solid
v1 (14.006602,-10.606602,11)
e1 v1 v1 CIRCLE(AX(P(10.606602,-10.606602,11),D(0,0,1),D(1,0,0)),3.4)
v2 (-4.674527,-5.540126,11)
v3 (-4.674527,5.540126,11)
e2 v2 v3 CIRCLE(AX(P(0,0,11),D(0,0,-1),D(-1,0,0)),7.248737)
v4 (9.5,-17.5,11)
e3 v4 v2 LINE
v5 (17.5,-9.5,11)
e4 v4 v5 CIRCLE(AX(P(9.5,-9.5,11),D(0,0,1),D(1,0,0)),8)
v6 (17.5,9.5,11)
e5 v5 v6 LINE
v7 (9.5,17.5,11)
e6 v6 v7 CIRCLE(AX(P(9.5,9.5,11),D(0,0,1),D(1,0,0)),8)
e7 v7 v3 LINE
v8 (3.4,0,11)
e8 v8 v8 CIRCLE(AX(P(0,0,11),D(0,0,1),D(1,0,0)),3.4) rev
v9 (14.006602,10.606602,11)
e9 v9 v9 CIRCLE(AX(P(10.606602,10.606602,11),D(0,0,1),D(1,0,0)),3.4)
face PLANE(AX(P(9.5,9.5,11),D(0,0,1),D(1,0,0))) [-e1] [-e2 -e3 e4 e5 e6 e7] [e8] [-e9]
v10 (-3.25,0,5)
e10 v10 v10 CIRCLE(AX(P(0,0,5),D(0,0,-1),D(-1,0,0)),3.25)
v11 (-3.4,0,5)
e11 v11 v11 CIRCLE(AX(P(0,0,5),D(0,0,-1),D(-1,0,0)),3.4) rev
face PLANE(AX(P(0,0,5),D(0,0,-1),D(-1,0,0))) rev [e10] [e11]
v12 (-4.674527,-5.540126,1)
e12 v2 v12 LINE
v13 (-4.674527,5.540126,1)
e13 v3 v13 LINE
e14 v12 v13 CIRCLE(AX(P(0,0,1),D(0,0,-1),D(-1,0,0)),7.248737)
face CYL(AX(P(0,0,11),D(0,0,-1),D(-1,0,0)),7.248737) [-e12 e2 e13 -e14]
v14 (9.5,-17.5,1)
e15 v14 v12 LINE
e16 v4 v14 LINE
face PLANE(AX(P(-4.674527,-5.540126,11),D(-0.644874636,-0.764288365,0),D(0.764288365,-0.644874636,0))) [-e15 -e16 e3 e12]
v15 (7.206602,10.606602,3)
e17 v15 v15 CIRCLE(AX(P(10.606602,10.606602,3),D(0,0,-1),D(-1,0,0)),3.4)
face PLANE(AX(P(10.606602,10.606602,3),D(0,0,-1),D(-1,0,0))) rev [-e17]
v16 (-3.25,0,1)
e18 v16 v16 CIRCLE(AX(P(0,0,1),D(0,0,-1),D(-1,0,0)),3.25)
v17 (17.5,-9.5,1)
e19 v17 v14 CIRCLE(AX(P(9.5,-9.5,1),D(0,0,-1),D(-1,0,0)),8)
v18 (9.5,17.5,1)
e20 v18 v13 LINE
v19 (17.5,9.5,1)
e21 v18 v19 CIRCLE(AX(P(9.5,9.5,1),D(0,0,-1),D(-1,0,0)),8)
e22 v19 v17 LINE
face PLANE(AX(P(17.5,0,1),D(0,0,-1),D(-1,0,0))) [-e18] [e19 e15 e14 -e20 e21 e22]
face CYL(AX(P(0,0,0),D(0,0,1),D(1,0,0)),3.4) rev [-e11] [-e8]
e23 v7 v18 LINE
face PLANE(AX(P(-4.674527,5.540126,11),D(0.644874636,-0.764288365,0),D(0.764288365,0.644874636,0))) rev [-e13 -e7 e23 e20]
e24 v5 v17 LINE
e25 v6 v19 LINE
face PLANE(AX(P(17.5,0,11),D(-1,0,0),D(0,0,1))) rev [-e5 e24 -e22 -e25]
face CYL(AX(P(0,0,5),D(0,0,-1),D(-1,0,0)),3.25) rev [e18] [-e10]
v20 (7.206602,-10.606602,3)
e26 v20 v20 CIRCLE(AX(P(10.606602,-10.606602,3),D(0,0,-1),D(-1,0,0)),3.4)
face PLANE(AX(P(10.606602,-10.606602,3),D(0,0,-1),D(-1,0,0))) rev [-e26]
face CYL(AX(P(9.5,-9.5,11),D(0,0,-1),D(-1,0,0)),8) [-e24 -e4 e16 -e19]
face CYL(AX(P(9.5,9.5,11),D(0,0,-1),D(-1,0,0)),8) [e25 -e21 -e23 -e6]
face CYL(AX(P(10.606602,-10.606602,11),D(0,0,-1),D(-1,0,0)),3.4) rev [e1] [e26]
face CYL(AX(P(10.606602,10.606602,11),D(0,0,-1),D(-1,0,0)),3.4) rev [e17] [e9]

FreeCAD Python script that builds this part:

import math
import FreeCAD as App
import Part
import Sketcher
from FreeCAD import Vector

doc = App.newDocument("Part")
params = doc.addObject("Spreadsheet::Sheet", "Params")
for row, (alias, value) in enumerate([
    ("sketch1_radius", "8 mm"),
    ("sketch1_diameter", "6.8 mm"),
    ("sketch1_width", "19 mm"),
    ("pad1_length", "11 mm"),
    ("sketch2_diameter", "6.8 mm"),
    ("pad2_length", "3 mm"),
    ("sketch3_diameter", "6.8 mm"),
    ("sketch4_diameter", "12 mm"),
    ("sketch4_diameter2", "6.8 mm"),
    ("pocket2_length", "5 mm"),
    ("sketch5_radius", "8 mm"),
    ("sketch5_width", "9.5 mm"),
    ("sketch7_radius", "8 mm"),
    ("sketch7_diameter", "6.8 mm"),
    ("sketch7_height", "19 mm"),
    ("sketch7_width", "9.5 mm"),
    ("pad3_length", "1 mm"),
    ("sketch8_radius", "8 mm"),
    ("sketch8_height", "19 mm"),
    ("sketch8_width", "9.5 mm"),
    ("pocket5_length", "1 mm"),
    ("sketch9_radius", "8 mm"),
    ("sketch9_height", "19 mm"),
    ("sketch9_width", "9.5 mm"),
    ("pocket6_length", "1 mm"),
    ("sketch10_width", "9.5 mm"),
    ("pocket7_length", "10 mm"),
    ("sketch11_diameter", "12 mm"),
    ("sketch11_diameter2", "6.5 mm"),
    ("pad4_length", "4 mm"),
], start=1):
    params.set(f"A{row}", alias)
    params.set(f"B{row}", "=" + value)
    params.setAlias(f"B{row}", alias)

body = doc.addObject("PartDesign::Body", "Body")

sketch1 = doc.addObject("Sketcher::SketchObject", "Sketch")
body.addObject(sketch1)
sketch1.AttachmentSupport = (doc.XY_Plane, [""])
sketch1.MapMode = "FlatFace"
sketch1.addGeometry([
    Part.LineSegment(Vector(-9.5, -17.5, 0), Vector(9.5, -17.5, 0)),
    Part.ArcOfCircle(Part.Circle(Vector(9.5, -9.5, 0), Vector(0, 0, 1), 8), math.radians(-90), math.radians(0)),
    Part.LineSegment(Vector(17.5, -9.5, 0), Vector(17.5, 9.5, 0)),
    Part.ArcOfCircle(Part.Circle(Vector(9.5, 9.5, 0), Vector(0, 0, 1), 8), math.radians(0), math.radians(90)),
    Part.LineSegment(Vector(9.5, 17.5, 0), Vector(-9.5, 17.5, 0)),
    Part.ArcOfCircle(Part.Circle(Vector(-9.5, 9.5, 0), Vector(0, 0, 1), 8), math.radians(90), math.radians(180)),
    Part.LineSegment(Vector(-17.5, 9.5, 0), Vector(-17.5, -9.5, 0)),
    Part.ArcOfCircle(Part.Circle(Vector(-9.5, -9.5, 0), Vector(0, 0, 1), 8), math.radians(-180), math.radians(-90)),
    Part.Circle(Vector(-10.6, -10.6, 0), Vector(0, 0, 1), 3.4),
    Part.Circle(Vector(10.6, -10.6, 0), Vector(0, 0, 1), 3.4),
    Part.Circle(Vector(-10.6, 10.6, 0), Vector(0, 0, 1), 3.4),
    Part.Circle(Vector(10.6, 10.6, 0), Vector(0, 0, 1), 3.4),
], False)
sketch1.addConstraint([
    Sketcher.Constraint("Tangent", 0, 2, 1, 1),
    Sketcher.Constraint("Tangent", 1, 2, 2, 1),
    Sketcher.Constraint("Tangent", 2, 2, 3, 1),
    Sketcher.Constraint("Tangent", 3, 2, 4, 1),
    Sketcher.Constraint("Tangent", 4, 2, 5, 1),
    Sketcher.Constraint("Tangent", 5, 2, 6, 1),
    Sketcher.Constraint("Tangent", 6, 2, 7, 1),
    Sketcher.Constraint("Tangent", 7, 2, 0, 1),
    Sketcher.Constraint("Horizontal", 0),
    Sketcher.Constraint("Vertical", 2),
    Sketcher.Constraint("Horizontal", 4),
    Sketcher.Constraint("Vertical", 6),
    Sketcher.Constraint("Equal", 1, 3),
    Sketcher.Constraint("Equal", 3, 5),
    Sketcher.Constraint("Equal", 5, 7),
    Sketcher.Constraint("Equal", 8, 9),
    Sketcher.Constraint("Equal", 9, 10),
    Sketcher.Constraint("Equal", 10, 11),
    Sketcher.Constraint("Symmetric", 1, 3, 5, 3, -1, 1),
    Sketcher.Constraint("Symmetric", 9, 3, 10, 3, -1, 1),
    Sketcher.Constraint("Symmetric", 8, 3, 11, 3, -1, 1),
    Sketcher.Constraint("Symmetric", 8, 3, 9, 3, -2),
    Sketcher.Constraint("Equal", 4, 2),
    Sketcher.Constraint("Radius", 1, 8.0),
    Sketcher.Constraint("Diameter", 8, 6.8),
    Sketcher.Constraint("DistanceX", 0, 1, 0, 2, 19.0),
    Sketcher.Constraint("DistanceX", 8, 3, -1, 1, 10.606602),
    Sketcher.Constraint("DistanceY", 8, 3, -1, 1, 10.606602),
])
sketch1.setExpression("Constraints[23]", "Params.sketch1_radius")
sketch1.setExpression("Constraints[24]", "Params.sketch1_diameter")
sketch1.setExpression("Constraints[25]", "Params.sketch1_width")
pad1 = doc.addObject("PartDesign::Pad", "Pad")
body.addObject(pad1)
pad1.Profile = sketch1
pad1.setExpression("Length", "Params.pad1_length")

sketch2 = doc.addObject("Sketcher::SketchObject", "Sketch001")
body.addObject(sketch2)
sketch2.AttachmentSupport = (doc.XY_Plane, [""])
sketch2.MapMode = "FlatFace"
sketch2.addGeometry([
    Part.Circle(Vector(-10.6, -10.6, 0), Vector(0, 0, 1), 3.4),
    Part.Circle(Vector(10.6, -10.6, 0), Vector(0, 0, 1), 3.4),
    Part.Circle(Vector(-10.6, 10.6, 0), Vector(0, 0, 1), 3.4),
    Part.Circle(Vector(10.6, 10.6, 0), Vector(0, 0, 1), 3.4),
], False)
sketch2.addConstraint([
    Sketcher.Constraint("Equal", 0, 1),
    Sketcher.Constraint("Equal", 1, 2),
    Sketcher.Constraint("Equal", 2, 3),
    Sketcher.Constraint("Symmetric", 1, 3, 2, 3, -1, 1),
    Sketcher.Constraint("Symmetric", 0, 3, 3, 3, -1, 1),
    Sketcher.Constraint("Symmetric", 0, 3, 1, 3, -2),
    Sketcher.Constraint("Diameter", 0, 6.8),
    Sketcher.Constraint("DistanceX", 0, 3, -1, 1, 10.606602),
    Sketcher.Constraint("DistanceY", 0, 3, -1, 1, 10.606602),
])
sketch2.setExpression("Constraints[6]", "Params.sketch2_diameter")
pad2 = doc.addObject("PartDesign::Pad", "Pad001")
body.addObject(pad2)
pad2.Profile = sketch2
pad2.setExpression("Length", "Params.pad2_length")

sketch3 = doc.addObject("Sketcher::SketchObject", "Sketch002")
body.addObject(sketch3)
sketch3.AttachmentSupport = (doc.XY_Plane, [""])
sketch3.MapMode = "FlatFace"
sketch3.AttachmentOffset = App.Placement(Vector(0, 0, 11), App.Rotation())
sketch3.addGeometry(Part.Circle(Vector(0, 0, 0), Vector(0, 0, 1), 3.4), False)
sketch3.addConstraint([
    Sketcher.Constraint("Coincident", 0, 3, -1, 1),
    Sketcher.Constraint("Diameter", 0, 6.8),
])
sketch3.setExpression("Constraints[1]", "Params.sketch3_diameter")
pocket1 = doc.addObject("PartDesign::Pocket", "Pocket")
body.addObject(pocket1)
pocket1.Profile = sketch3
pocket1.Type = "ThroughAll"

sketch4 = doc.addObject("Sketcher::SketchObject", "Sketch003")
body.addObject(sketch4)
sketch4.AttachmentSupport = (doc.XY_Plane, [""])
sketch4.MapMode = "FlatFace"
sketch4.AttachmentOffset = App.Placement(Vector(0, 0, 5), App.Rotation())
sketch4.addGeometry([
    Part.Circle(Vector(0, 0, 0), Vector(0, 0, 1), 6),
    Part.Circle(Vector(0, 0, 0), Vector(0, 0, 1), 3.4),
], False)
sketch4.addConstraint([
    Sketcher.Constraint("Coincident", 0, 3, -1, 1),
    Sketcher.Constraint("Coincident", 1, 3, -1, 1),
    Sketcher.Constraint("Diameter", 0, 12.0),
    Sketcher.Constraint("Diameter", 1, 6.8),
])
sketch4.setExpression("Constraints[2]", "Params.sketch4_diameter")
sketch4.setExpression("Constraints[3]", "Params.sketch4_diameter2")
pocket2 = doc.addObject("PartDesign::Pocket", "Pocket001")
body.addObject(pocket2)
pocket2.Profile = sketch4
pocket2.setExpression("Length", "Params.pocket2_length")

sketch5 = doc.addObject("Sketcher::SketchObject", "Sketch004")
body.addObject(sketch5)
sketch5.AttachmentSupport = (doc.XY_Plane, [""])
sketch5.MapMode = "FlatFace"
sketch5.addGeometry([
    Part.LineSegment(Vector(-10, 18, 0), Vector(0, 18, 0)),
    Part.LineSegment(Vector(0, 18, 0), Vector(-18, 0, 0)),
    Part.LineSegment(Vector(-18, 0, 0), Vector(-18, 10, 0)),
    Part.ArcOfCircle(Part.Circle(Vector(-9, 9, 0), Vector(0, 0, 1), 8), math.radians(90), math.radians(180)),
    Part.LineSegment(Vector(-18, -10, 0), Vector(-18, 0, 0)),
    Part.LineSegment(Vector(-18, 0, 0), Vector(0, -18, 0)),
    Part.LineSegment(Vector(0, -18, 0), Vector(-10, -18, 0)),
    Part.ArcOfCircle(Part.Circle(Vector(-9, -9, 0), Vector(0, 0, 1), 8), math.radians(-180), math.radians(-90)),
], False)
sketch5.addConstraint([
    Sketcher.Constraint("Coincident", 0, 2, 1, 1),
    Sketcher.Constraint("Coincident", 1, 2, 2, 1),
    Sketcher.Constraint("Tangent", 2, 2, 3, 2),
    Sketcher.Constraint("Tangent", 3, 1, 0, 1),
    Sketcher.Constraint("Coincident", 4, 2, 5, 1),
    Sketcher.Constraint("Coincident", 5, 2, 6, 1),
    Sketcher.Constraint("Tangent", 6, 2, 7, 2),
    Sketcher.Constraint("Tangent", 7, 1, 4, 1),
    Sketcher.Constraint("Horizontal", 0),
    Sketcher.Constraint("Vertical", 2),
    Sketcher.Constraint("Vertical", 4),
    Sketcher.Constraint("Horizontal", 6),
    Sketcher.Constraint("Coincident", 4, 2, 1, 2),
    Sketcher.Constraint("Equal", 3, 7),
    Sketcher.Constraint("Symmetric", 0, 2, 5, 2, -1, 1),
    Sketcher.Constraint("PointOnObject", 0, 2, -2),
    Sketcher.Constraint("PointOnObject", 1, 2, -1),
    Sketcher.Constraint("Perpendicular", 1, 5),
    Sketcher.Constraint("Radius", 3, 8.0),
    Sketcher.Constraint("DistanceX", 0, 1, 0, 2, 9.5),
])
sketch5.setExpression("Constraints[18]", "Params.sketch5_radius")
sketch5.setExpression("Constraints[19]", "Params.sketch5_width")
pocket3 = doc.addObject("PartDesign::Pocket", "Pocket002")
body.addObject(pocket3)
pocket3.Profile = sketch5
pocket3.Type = "ThroughAll"
pocket3.Reversed = True

sketch6 = doc.addObject("Sketcher::SketchObject", "Sketch005")
body.addObject(sketch6)
sketch6.AttachmentSupport = (doc.XY_Plane, [""])
sketch6.MapMode = "FlatFace"
sketch6.AttachmentOffset = App.Placement(Vector(0, 0, 11), App.Rotation())
sketch6.addGeometry([
    Part.ArcOfCircle(Part.Circle(Vector(17, 0, 0), Vector(0, 0, 1), 25), math.radians(135), math.radians(225)),
    Part.LineSegment(Vector(0, 18, 0), Vector(-18, 0, 0)),
    Part.LineSegment(Vector(-18, 0, 0), Vector(0, -18, 0)),
], False)
sketch6.addConstraint([
    Sketcher.Constraint("Tangent", 0, 1, 1, 1),
    Sketcher.Constraint("Coincident", 1, 2, 2, 1),
    Sketcher.Constraint("Tangent", 2, 2, 0, 2),
    Sketcher.Constraint("Symmetric", 0, 1, 2, 2, -1, 1),
    Sketcher.Constraint("PointOnObject", 0, 3, -1),
    Sketcher.Constraint("Perpendicular", 1, 2),
    Sketcher.Constraint("DistanceX", 1, 2, 0, 3, 35.0),
])
pocket4 = doc.addObject("PartDesign::Pocket", "Pocket003")
body.addObject(pocket4)
pocket4.Profile = sketch6
pocket4.Type = "ThroughAll"

sketch7 = doc.addObject("Sketcher::SketchObject", "Sketch006")
body.addObject(sketch7)
sketch7.AttachmentSupport = (doc.XY_Plane, [""])
sketch7.MapMode = "FlatFace"
sketch7.AttachmentOffset = App.Placement(Vector(0, 0, 11), App.Rotation())
sketch7.addGeometry([
    Part.LineSegment(Vector(9.5, 17.5, 0), Vector(0, 17.5, 0)),
    Part.ArcOfCircle(Part.Circle(Vector(17.5, 0, 0), Vector(0, 0, 1), 24.7), math.radians(135), math.radians(225)),
    Part.LineSegment(Vector(0, -17.5, 0), Vector(9.5, -17.5, 0)),
    Part.ArcOfCircle(Part.Circle(Vector(9.5, -9.5, 0), Vector(0, 0, 1), 8), math.radians(-90), math.radians(0)),
    Part.LineSegment(Vector(17.5, -9.5, 0), Vector(17.5, 9.5, 0)),
    Part.ArcOfCircle(Part.Circle(Vector(9.5, 9.5, 0), Vector(0, 0, 1), 8), math.radians(0), math.radians(90)),
    Part.Circle(Vector(10.6, -10.6, 0), Vector(0, 0, 1), 3.4),
    Part.Circle(Vector(0, 0, 0), Vector(0, 0, 1), 3.4),
    Part.Circle(Vector(10.6, 10.6, 0), Vector(0, 0, 1), 3.4),
], False)
sketch7.addConstraint([
    Sketcher.Constraint("Coincident", 0, 2, 1, 1),
    Sketcher.Constraint("Coincident", 1, 2, 2, 1),
    Sketcher.Constraint("Tangent", 2, 2, 3, 1),
    Sketcher.Constraint("Tangent", 3, 2, 4, 1),
    Sketcher.Constraint("Tangent", 4, 2, 5, 1),
    Sketcher.Constraint("Tangent", 5, 2, 0, 1),
    Sketcher.Constraint("Horizontal", 0),
    Sketcher.Constraint("Horizontal", 2),
    Sketcher.Constraint("Vertical", 4),
    Sketcher.Constraint("Coincident", 7, 3, -1, 1),
    Sketcher.Constraint("Equal", 3, 5),
    Sketcher.Constraint("Equal", 6, 7),
    Sketcher.Constraint("Equal", 7, 8),
    Sketcher.Constraint("Symmetric", 0, 2, 1, 2, -1, 1),
    Sketcher.Constraint("Symmetric", 6, 3, 8, 3, -1),
    Sketcher.Constraint("PointOnObject", 1, 3, -1),
    Sketcher.Constraint("Vertical", 1, 3, 3, 2),
    Sketcher.Constraint("Radius", 3, 8.0),
    Sketcher.Constraint("Diameter", 6, 6.8),
    Sketcher.Constraint("DistanceY", 4, 1, 4, 2, 19.0),
    Sketcher.Constraint("DistanceX", 0, 2, 0, 1, 9.5),
    Sketcher.Constraint("DistanceX", -1, 1, 6, 3, 10.606602),
    Sketcher.Constraint("DistanceY", 6, 3, -1, 1, 10.606602),
])
sketch7.setExpression("Constraints[17]", "Params.sketch7_radius")
sketch7.setExpression("Constraints[18]", "Params.sketch7_diameter")
sketch7.setExpression("Constraints[19]", "Params.sketch7_height")
sketch7.setExpression("Constraints[20]", "Params.sketch7_width")
pad3 = doc.addObject("PartDesign::Pad", "Pad002")
body.addObject(pad3)
pad3.Profile = sketch7
pad3.setExpression("Length", "Params.pad3_length")

sketch8 = doc.addObject("Sketcher::SketchObject", "Sketch007")
body.addObject(sketch8)
sketch8.AttachmentSupport = (doc.XY_Plane, [""])
sketch8.MapMode = "FlatFace"
sketch8.AttachmentOffset = App.Placement(Vector(0, 0, 11), App.Rotation())
sketch8.addGeometry([
    Part.LineSegment(Vector(10, 18, 0), Vector(0, 18, 0)),
    Part.ArcOfCircle(Part.Circle(Vector(17, 0, 0), Vector(0, 0, 1), 25), math.radians(135), math.radians(225)),
    Part.LineSegment(Vector(0, -18, 0), Vector(10, -18, 0)),
    Part.ArcOfCircle(Part.Circle(Vector(9, -9, 0), Vector(0, 0, 1), 8), math.radians(-90), math.radians(0)),
    Part.LineSegment(Vector(18, -10, 0), Vector(18, 10, 0)),
    Part.ArcOfCircle(Part.Circle(Vector(9, 9, 0), Vector(0, 0, 1), 8), math.radians(0), math.radians(90)),
], False)
sketch8.addConstraint([
    Sketcher.Constraint("Coincident", 0, 2, 1, 1),
    Sketcher.Constraint("Coincident", 1, 2, 2, 1),
    Sketcher.Constraint("Tangent", 2, 2, 3, 1),
    Sketcher.Constraint("Tangent", 3, 2, 4, 1),
    Sketcher.Constraint("Tangent", 4, 2, 5, 1),
    Sketcher.Constraint("Tangent", 5, 2, 0, 1),
    Sketcher.Constraint("Horizontal", 0),
    Sketcher.Constraint("Horizontal", 2),
    Sketcher.Constraint("Vertical", 4),
    Sketcher.Constraint("Equal", 3, 5),
    Sketcher.Constraint("Symmetric", 0, 2, 1, 2, -1, 1),
    Sketcher.Constraint("PointOnObject", 1, 3, -1),
    Sketcher.Constraint("Vertical", 1, 3, 3, 2),
    Sketcher.Constraint("Radius", 3, 8.0),
    Sketcher.Constraint("DistanceY", 4, 1, 4, 2, 19.0),
    Sketcher.Constraint("DistanceX", 0, 2, 0, 1, 9.5),
])
sketch8.setExpression("Constraints[13]", "Params.sketch8_radius")
sketch8.setExpression("Constraints[14]", "Params.sketch8_height")
sketch8.setExpression("Constraints[15]", "Params.sketch8_width")
pocket5 = doc.addObject("PartDesign::Pocket", "Pocket004")
body.addObject(pocket5)
pocket5.Profile = sketch8
pocket5.setExpression("Length", "Params.pocket5_length")
pocket5.Reversed = True

sketch9 = doc.addObject("Sketcher::SketchObject", "Sketch008")
body.addObject(sketch9)
sketch9.AttachmentSupport = (doc.XY_Plane, [""])
sketch9.MapMode = "FlatFace"
sketch9.addGeometry([
    Part.LineSegment(Vector(0, 18, 0), Vector(10, 18, 0)),
    Part.ArcOfCircle(Part.Circle(Vector(9, 9, 0), Vector(0, 0, 1), 8), math.radians(0), math.radians(90)),
    Part.LineSegment(Vector(18, 10, 0), Vector(18, -10, 0)),
    Part.ArcOfCircle(Part.Circle(Vector(9, -9, 0), Vector(0, 0, 1), 8), math.radians(-90), math.radians(0)),
    Part.LineSegment(Vector(10, -18, 0), Vector(0, -18, 0)),
    Part.ArcOfCircle(Part.Circle(Vector(17, 0, 0), Vector(0, 0, 1), 25), math.radians(135), math.radians(225)),
], False)
sketch9.addConstraint([
    Sketcher.Constraint("Tangent", 0, 2, 1, 2),
    Sketcher.Constraint("Tangent", 1, 1, 2, 1),
    Sketcher.Constraint("Tangent", 2, 2, 3, 2),
    Sketcher.Constraint("Tangent", 3, 1, 4, 1),
    Sketcher.Constraint("Coincident", 4, 2, 5, 2),
    Sketcher.Constraint("Coincident", 5, 1, 0, 1),
    Sketcher.Constraint("Horizontal", 0),
    Sketcher.Constraint("Vertical", 2),
    Sketcher.Constraint("Horizontal", 4),
    Sketcher.Constraint("Equal", 1, 3),
    Sketcher.Constraint("Symmetric", 4, 2, 5, 1, -1, 1),
    Sketcher.Constraint("PointOnObject", 5, 3, -1),
    Sketcher.Constraint("Vertical", 5, 3, 1, 1),
    Sketcher.Constraint("Radius", 1, 8.0),
    Sketcher.Constraint("DistanceY", 2, 2, 2, 1, 19.0),
    Sketcher.Constraint("DistanceX", 0, 1, 0, 2, 9.5),
])
sketch9.setExpression("Constraints[13]", "Params.sketch9_radius")
sketch9.setExpression("Constraints[14]", "Params.sketch9_height")
sketch9.setExpression("Constraints[15]", "Params.sketch9_width")
pocket6 = doc.addObject("PartDesign::Pocket", "Pocket005")
body.addObject(pocket6)
pocket6.Profile = sketch9
pocket6.setExpression("Length", "Params.pocket6_length")
pocket6.Reversed = True

sketch10 = doc.addObject("Sketcher::SketchObject", "Sketch009")
body.addObject(sketch10)
sketch10.AttachmentSupport = (doc.XY_Plane, [""])
sketch10.MapMode = "FlatFace"
sketch10.AttachmentOffset = App.Placement(Vector(0, 0, 11), App.Rotation())
sketch10.addGeometry([
    Part.LineSegment(Vector(0, 18, 0), Vector(10, 18, 0)),
    Part.LineSegment(Vector(10, 18, 0), Vector(-5, 6, 0)),
    Part.ArcOfCircle(Part.Circle(Vector(0, 0, 0), Vector(0, 0, 1), 7), math.radians(130), math.radians(180)),
    Part.ArcOfCircle(Part.Circle(Vector(18, 0, 0), Vector(0, 0, 1), 25), math.radians(135), math.radians(180)),
    Part.ArcOfCircle(Part.Circle(Vector(18, 0, 0), Vector(0, 0, 1), 25), math.radians(-180), math.radians(-135)),
    Part.ArcOfCircle(Part.Circle(Vector(0, 0, 0), Vector(0, 0, 1), 7), math.radians(-180), math.radians(-130)),
    Part.LineSegment(Vector(-5, -6, 0), Vector(10, -18, 0)),
    Part.LineSegment(Vector(10, -18, 0), Vector(0, -18, 0)),
], False)
sketch10.addConstraint([
    Sketcher.Constraint("Coincident", 0, 2, 1, 1),
    Sketcher.Constraint("Tangent", 1, 2, 2, 1),
    Sketcher.Constraint("Tangent", 2, 2, 3, 2),
    Sketcher.Constraint("Coincident", 3, 1, 0, 1),
    Sketcher.Constraint("Tangent", 4, 1, 5, 1),
    Sketcher.Constraint("Tangent", 5, 2, 6, 1),
    Sketcher.Constraint("Coincident", 6, 2, 7, 1),
    Sketcher.Constraint("Coincident", 7, 2, 4, 2),
    Sketcher.Constraint("Horizontal", 0),
    Sketcher.Constraint("Horizontal", 7),
    Sketcher.Constraint("Coincident", 2, 3, -1, 1),
    Sketcher.Constraint("Coincident", 5, 3, -1, 1),
    Sketcher.Constraint("Coincident", 4, 3, 3, 3),
    Sketcher.Constraint("Equal", 3, 4),
    Sketcher.Constraint("Symmetric", 3, 1, 7, 2, -1, 1),
    Sketcher.Constraint("PointOnObject", 3, 3, -1),
    Sketcher.Constraint("Vertical", 1, 2, 5, 2),
    Sketcher.Constraint("DistanceX", 0, 1, 0, 2, 9.5),
    Sketcher.Constraint("DistanceX", 0, 2, 4, 3, 8.0),
    Sketcher.Constraint("DistanceY", -1, 1, 0, 2, 17.5),
])
sketch10.setExpression("Constraints[17]", "Params.sketch10_width")
pocket7 = doc.addObject("PartDesign::Pocket", "Pocket006")
body.addObject(pocket7)
pocket7.Profile = sketch10
pocket7.setExpression("Length", "Params.pocket7_length")

sketch11 = doc.addObject("Sketcher::SketchObject", "Sketch010")
body.addObject(sketch11)
sketch11.AttachmentSupport = (doc.XY_Plane, [""])
sketch11.MapMode = "FlatFace"
sketch11.AttachmentOffset = App.Placement(Vector(0, 0, 5), App.Rotation())
sketch11.addGeometry([
    Part.Circle(Vector(0, 0, 0), Vector(0, 0, 1), 6),
    Part.Circle(Vector(0, 0, 0), Vector(0, 0, 1), 3.2),
], False)
sketch11.addConstraint([
    Sketcher.Constraint("Coincident", 0, 3, -1, 1),
    Sketcher.Constraint("Coincident", 1, 3, -1, 1),
    Sketcher.Constraint("Diameter", 0, 12.0),
    Sketcher.Constraint("Diameter", 1, 6.5),
])
sketch11.setExpression("Constraints[2]", "Params.sketch11_diameter")
sketch11.setExpression("Constraints[3]", "Params.sketch11_diameter2")
pad4 = doc.addObject("PartDesign::Pad", "Pad003")
body.addObject(pad4)
pad4.Profile = sketch11
pad4.setExpression("Length", "Params.pad4_length")
pad4.Reversed = True

doc.recompute()
